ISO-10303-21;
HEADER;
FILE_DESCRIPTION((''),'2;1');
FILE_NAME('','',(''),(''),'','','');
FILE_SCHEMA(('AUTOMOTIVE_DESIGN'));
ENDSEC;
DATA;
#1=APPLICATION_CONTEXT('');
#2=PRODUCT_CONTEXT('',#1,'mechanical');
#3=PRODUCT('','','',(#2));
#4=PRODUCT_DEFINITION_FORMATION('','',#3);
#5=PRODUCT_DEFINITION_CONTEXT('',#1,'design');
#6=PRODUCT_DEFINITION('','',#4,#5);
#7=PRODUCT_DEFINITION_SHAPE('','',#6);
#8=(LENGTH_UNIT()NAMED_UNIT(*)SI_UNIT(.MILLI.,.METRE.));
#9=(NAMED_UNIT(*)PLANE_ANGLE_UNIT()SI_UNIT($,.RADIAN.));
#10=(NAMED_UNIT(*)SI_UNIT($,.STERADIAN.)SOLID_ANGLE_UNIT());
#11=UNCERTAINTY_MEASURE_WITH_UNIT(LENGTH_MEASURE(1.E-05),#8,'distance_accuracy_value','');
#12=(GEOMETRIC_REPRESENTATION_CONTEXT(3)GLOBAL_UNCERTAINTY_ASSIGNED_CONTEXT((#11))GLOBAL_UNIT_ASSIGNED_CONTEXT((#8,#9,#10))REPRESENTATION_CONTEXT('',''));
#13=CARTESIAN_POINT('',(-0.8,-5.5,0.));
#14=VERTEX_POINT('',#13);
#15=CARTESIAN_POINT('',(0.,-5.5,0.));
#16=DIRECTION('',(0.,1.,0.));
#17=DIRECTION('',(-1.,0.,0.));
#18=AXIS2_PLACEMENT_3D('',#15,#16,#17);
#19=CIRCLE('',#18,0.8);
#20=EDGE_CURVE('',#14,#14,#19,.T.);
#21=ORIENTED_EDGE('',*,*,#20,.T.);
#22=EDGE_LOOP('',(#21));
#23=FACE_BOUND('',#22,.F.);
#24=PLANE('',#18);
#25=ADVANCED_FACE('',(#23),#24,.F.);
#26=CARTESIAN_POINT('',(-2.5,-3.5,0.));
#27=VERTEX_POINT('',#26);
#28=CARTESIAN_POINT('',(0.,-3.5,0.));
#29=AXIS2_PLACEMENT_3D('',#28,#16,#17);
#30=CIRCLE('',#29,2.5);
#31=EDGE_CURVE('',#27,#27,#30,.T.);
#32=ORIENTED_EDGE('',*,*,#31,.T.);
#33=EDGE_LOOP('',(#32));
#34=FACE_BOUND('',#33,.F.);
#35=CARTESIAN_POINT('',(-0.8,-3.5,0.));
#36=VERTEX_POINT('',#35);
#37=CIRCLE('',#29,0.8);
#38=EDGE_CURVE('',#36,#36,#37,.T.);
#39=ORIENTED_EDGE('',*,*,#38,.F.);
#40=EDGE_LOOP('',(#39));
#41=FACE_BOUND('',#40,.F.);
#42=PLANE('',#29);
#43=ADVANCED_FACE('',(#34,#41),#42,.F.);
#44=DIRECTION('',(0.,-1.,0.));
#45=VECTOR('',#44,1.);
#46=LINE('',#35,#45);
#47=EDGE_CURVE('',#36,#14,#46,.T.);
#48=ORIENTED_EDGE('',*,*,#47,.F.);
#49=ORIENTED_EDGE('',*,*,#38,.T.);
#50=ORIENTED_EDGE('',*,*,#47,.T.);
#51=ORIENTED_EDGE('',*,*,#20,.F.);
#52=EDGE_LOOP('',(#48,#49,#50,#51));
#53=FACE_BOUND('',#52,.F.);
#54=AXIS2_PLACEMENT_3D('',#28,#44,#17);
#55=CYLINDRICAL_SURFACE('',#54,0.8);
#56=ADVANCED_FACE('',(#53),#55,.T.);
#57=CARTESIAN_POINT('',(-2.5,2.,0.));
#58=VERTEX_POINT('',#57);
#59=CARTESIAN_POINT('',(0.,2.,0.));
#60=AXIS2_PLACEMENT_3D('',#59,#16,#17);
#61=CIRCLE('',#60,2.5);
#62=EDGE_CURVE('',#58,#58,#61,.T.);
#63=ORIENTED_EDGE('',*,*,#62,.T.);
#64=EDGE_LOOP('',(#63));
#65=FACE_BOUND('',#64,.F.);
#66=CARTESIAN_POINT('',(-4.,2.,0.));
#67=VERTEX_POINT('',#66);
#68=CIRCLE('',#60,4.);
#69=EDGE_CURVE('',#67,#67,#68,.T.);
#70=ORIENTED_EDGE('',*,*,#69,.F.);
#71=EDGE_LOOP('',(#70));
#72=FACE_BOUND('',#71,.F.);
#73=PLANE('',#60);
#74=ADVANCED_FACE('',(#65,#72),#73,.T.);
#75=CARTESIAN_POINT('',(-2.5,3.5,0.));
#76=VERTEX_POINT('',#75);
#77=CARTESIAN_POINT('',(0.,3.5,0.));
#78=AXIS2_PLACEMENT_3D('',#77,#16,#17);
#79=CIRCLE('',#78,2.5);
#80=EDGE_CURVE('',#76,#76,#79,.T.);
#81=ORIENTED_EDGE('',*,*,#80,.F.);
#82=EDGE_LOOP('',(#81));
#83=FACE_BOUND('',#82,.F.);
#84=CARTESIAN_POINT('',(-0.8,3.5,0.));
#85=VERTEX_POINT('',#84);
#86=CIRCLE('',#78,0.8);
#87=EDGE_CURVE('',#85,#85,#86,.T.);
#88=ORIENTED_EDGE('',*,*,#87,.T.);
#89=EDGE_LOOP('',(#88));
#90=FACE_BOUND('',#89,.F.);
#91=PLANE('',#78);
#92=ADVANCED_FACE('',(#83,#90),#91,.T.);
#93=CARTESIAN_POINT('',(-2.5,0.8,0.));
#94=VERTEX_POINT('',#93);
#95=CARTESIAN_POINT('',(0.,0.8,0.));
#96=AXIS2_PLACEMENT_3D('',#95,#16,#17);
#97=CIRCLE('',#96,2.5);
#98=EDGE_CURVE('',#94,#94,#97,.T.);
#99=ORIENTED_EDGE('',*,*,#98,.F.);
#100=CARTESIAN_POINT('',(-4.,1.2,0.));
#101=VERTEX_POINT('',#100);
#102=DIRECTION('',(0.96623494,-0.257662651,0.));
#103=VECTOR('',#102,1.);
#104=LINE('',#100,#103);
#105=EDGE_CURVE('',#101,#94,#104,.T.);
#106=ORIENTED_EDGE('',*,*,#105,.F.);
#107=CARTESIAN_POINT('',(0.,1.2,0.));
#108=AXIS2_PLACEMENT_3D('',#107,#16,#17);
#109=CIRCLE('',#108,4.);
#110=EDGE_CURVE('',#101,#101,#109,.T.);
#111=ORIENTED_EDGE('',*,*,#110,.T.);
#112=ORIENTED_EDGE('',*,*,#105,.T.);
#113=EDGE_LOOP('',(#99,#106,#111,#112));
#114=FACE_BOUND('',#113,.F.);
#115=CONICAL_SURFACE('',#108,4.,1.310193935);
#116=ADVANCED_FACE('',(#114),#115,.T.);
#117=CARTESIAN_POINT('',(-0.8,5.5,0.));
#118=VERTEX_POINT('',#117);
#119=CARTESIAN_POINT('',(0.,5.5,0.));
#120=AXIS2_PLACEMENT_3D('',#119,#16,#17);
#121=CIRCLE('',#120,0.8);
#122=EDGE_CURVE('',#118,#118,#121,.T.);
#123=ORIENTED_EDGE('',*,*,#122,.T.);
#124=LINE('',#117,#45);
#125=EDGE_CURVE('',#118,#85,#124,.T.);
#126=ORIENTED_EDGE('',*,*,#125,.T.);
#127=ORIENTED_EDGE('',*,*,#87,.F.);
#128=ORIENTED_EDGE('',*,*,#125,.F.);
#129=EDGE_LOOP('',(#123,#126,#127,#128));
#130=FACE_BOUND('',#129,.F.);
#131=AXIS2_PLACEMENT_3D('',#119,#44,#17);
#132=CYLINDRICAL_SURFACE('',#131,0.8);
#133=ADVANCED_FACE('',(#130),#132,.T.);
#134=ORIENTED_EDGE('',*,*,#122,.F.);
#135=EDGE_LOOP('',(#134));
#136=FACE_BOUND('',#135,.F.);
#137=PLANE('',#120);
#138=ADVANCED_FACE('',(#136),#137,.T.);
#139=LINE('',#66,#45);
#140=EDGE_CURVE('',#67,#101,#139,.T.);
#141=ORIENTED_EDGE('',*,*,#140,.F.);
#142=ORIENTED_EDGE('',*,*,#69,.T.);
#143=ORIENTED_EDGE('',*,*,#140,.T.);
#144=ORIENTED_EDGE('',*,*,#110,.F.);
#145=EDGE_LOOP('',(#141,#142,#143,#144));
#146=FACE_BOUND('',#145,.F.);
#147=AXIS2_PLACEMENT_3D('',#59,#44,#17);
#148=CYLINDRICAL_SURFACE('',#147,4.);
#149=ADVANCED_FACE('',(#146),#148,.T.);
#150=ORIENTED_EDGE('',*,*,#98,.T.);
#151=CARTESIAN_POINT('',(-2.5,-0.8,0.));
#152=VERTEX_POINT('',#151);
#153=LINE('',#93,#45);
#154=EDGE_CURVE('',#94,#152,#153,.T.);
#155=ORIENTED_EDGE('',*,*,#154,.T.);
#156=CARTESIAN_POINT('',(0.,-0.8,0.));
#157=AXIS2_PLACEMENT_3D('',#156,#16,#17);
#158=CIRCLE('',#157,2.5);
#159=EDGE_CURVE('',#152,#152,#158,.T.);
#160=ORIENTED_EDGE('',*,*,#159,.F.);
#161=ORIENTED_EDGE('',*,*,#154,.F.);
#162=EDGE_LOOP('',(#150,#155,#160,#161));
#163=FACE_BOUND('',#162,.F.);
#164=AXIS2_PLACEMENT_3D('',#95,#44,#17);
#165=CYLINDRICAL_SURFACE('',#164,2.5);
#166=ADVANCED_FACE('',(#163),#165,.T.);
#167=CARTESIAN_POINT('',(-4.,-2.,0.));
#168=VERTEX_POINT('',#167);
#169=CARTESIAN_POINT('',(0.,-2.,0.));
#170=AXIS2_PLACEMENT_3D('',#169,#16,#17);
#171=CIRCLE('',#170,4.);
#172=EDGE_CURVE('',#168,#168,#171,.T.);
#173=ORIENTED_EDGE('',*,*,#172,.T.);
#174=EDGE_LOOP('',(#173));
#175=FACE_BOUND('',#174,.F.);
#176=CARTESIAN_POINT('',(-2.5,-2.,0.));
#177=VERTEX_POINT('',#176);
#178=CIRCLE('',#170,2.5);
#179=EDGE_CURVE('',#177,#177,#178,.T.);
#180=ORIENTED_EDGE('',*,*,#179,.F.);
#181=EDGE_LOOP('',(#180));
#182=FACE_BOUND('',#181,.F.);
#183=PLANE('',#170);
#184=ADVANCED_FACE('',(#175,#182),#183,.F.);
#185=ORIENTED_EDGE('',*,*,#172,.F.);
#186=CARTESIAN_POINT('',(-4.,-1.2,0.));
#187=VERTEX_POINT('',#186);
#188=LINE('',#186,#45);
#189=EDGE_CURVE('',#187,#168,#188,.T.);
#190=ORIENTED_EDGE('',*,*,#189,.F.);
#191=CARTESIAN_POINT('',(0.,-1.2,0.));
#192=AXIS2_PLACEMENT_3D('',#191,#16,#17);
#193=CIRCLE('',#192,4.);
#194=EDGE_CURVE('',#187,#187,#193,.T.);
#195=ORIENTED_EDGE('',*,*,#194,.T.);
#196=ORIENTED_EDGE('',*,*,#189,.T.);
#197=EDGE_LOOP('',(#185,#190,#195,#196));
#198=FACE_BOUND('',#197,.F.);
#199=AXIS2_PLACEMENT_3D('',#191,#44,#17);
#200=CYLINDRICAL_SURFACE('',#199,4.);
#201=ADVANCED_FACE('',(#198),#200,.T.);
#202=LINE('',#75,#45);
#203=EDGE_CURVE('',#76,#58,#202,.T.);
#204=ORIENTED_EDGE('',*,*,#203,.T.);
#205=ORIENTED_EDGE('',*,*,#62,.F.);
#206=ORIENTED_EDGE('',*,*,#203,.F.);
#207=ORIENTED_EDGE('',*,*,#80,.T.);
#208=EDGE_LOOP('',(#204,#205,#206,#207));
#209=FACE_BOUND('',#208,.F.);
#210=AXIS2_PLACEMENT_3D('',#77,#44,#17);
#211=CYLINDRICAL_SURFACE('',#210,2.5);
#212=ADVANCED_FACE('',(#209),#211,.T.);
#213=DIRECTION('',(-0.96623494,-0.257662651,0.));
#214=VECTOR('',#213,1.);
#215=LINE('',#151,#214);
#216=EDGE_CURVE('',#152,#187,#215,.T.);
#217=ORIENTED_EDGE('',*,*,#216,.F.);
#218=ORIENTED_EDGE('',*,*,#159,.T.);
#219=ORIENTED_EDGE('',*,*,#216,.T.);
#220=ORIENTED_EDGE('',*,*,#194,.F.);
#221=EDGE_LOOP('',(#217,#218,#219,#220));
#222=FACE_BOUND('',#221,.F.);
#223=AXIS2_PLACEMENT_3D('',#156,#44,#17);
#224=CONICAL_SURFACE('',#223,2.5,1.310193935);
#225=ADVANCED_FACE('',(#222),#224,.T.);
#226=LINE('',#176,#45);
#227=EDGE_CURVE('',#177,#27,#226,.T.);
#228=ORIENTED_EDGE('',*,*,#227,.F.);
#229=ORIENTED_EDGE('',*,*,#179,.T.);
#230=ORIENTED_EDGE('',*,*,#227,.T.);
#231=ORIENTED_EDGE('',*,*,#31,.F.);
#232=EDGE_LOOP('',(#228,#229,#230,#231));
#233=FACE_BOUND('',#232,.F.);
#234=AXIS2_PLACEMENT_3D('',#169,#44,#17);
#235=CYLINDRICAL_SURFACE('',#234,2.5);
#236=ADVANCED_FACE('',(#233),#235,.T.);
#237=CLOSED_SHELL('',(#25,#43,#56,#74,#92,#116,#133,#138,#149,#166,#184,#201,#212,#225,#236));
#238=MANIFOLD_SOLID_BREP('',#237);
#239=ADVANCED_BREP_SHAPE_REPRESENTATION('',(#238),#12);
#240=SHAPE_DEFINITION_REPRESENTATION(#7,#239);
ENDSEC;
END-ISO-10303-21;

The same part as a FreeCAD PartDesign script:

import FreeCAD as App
import Part
import Sketcher

V = App.Vector


def add_polygon(sketch, points):
    """Adds a closed chain of lines whose ends are joined by coincident constraints."""
    first, n = sketch.GeometryCount, len(points)
    for a, b in zip(points, points[1:] + points[:1]):
        sketch.addGeometry(Part.LineSegment(App.Vector(*a, 0), App.Vector(*b, 0)), False)
    for i in range(n):
        sketch.addConstraint(Sketcher.Constraint("Coincident", first + i, 2, first + (i + 1) % n, 1))

doc = App.newDocument("Part")
body = doc.addObject("PartDesign::Body", "Body")

sketch1 = body.newObject("Sketcher::SketchObject", "Sketch")
sketch1.AttachmentSupport = (doc.getObject("XY_Plane"), [""])
sketch1.MapMode = "FlatFace"
add_polygon(sketch1, [(-0.8, -5.5), (0, -5.5), (0, 5.5), (-0.8, 5.5), (-0.8, 3.5), (-2.5, 3.5), (-2.5, 2), (-4, 2), (-4, 1.2), (-2.5, 0.8), (-2.5, -0.8), (-4, -1.2), (-4, -2), (-2.5, -2), (-2.5, -3.5), (-0.8, -3.5)])
sketch1.addConstraint(Sketcher.Constraint("Horizontal", 0))
sketch1.addConstraint(Sketcher.Constraint("Vertical", 1))
sketch1.addConstraint(Sketcher.Constraint("Horizontal", 2))
sketch1.addConstraint(Sketcher.Constraint("Vertical", 3))
sketch1.addConstraint(Sketcher.Constraint("Horizontal", 4))
sketch1.addConstraint(Sketcher.Constraint("Vertical", 5))
sketch1.addConstraint(Sketcher.Constraint("Horizontal", 6))
sketch1.addConstraint(Sketcher.Constraint("Vertical", 7))
sketch1.addConstraint(Sketcher.Constraint("Vertical", 9))
sketch1.addConstraint(Sketcher.Constraint("Vertical", 11))
sketch1.addConstraint(Sketcher.Constraint("Horizontal", 12))
sketch1.addConstraint(Sketcher.Constraint("Vertical", 13))
sketch1.addConstraint(Sketcher.Constraint("Horizontal", 14))
sketch1.addConstraint(Sketcher.Constraint("Vertical", 15))
sketch1.addConstraint(Sketcher.Constraint("Symmetric", 0, 2, 1, 2, -1, 1))
sketch1.addConstraint(Sketcher.Constraint("Symmetric", 7, 2, 10, 2, -1))
sketch1.addConstraint(Sketcher.Constraint("Symmetric", 5, 2, 12, 2, -1))
sketch1.addConstraint(Sketcher.Constraint("Symmetric", 3, 2, 14, 2, -1))
sketch1.addConstraint(Sketcher.Constraint("Vertical", 5, 2, 8, 2))
sketch1.addConstraint(Sketcher.Constraint("Equal", 12, 5))
sketch1.addConstraint(Sketcher.Constraint("Equal", 2, 7))
sketch1.addConstraint(Sketcher.Constraint("Equal", 8, 10))
sketch1.addConstraint(Sketcher.Constraint("DistanceY", 1, 1, 1, 2, 11.0))
sketch1.addConstraint(Sketcher.Constraint("DistanceX", 0, 1, 0, 2, 0.8))
sketch1.addConstraint(Sketcher.Constraint("DistanceY", 9, 2, 9, 1, 1.6))
sketch1.addConstraint(Sketcher.Constraint("DistanceX", 6, 2, -1, 1, 4.0))
sketch1.addConstraint(Sketcher.Constraint("DistanceY", 11, 2, 6, 2, 4.0))
sketch1.addConstraint(Sketcher.Constraint("DistanceY", 3, 2, 3, 1, 2.0))
revolution = body.newObject("PartDesign::Revolution", "Revolution")
revolution.Profile = sketch1
revolution.ReferenceAxis = (sketch1, ["V_Axis"])
revolution.Angle = 360

doc.recompute()
